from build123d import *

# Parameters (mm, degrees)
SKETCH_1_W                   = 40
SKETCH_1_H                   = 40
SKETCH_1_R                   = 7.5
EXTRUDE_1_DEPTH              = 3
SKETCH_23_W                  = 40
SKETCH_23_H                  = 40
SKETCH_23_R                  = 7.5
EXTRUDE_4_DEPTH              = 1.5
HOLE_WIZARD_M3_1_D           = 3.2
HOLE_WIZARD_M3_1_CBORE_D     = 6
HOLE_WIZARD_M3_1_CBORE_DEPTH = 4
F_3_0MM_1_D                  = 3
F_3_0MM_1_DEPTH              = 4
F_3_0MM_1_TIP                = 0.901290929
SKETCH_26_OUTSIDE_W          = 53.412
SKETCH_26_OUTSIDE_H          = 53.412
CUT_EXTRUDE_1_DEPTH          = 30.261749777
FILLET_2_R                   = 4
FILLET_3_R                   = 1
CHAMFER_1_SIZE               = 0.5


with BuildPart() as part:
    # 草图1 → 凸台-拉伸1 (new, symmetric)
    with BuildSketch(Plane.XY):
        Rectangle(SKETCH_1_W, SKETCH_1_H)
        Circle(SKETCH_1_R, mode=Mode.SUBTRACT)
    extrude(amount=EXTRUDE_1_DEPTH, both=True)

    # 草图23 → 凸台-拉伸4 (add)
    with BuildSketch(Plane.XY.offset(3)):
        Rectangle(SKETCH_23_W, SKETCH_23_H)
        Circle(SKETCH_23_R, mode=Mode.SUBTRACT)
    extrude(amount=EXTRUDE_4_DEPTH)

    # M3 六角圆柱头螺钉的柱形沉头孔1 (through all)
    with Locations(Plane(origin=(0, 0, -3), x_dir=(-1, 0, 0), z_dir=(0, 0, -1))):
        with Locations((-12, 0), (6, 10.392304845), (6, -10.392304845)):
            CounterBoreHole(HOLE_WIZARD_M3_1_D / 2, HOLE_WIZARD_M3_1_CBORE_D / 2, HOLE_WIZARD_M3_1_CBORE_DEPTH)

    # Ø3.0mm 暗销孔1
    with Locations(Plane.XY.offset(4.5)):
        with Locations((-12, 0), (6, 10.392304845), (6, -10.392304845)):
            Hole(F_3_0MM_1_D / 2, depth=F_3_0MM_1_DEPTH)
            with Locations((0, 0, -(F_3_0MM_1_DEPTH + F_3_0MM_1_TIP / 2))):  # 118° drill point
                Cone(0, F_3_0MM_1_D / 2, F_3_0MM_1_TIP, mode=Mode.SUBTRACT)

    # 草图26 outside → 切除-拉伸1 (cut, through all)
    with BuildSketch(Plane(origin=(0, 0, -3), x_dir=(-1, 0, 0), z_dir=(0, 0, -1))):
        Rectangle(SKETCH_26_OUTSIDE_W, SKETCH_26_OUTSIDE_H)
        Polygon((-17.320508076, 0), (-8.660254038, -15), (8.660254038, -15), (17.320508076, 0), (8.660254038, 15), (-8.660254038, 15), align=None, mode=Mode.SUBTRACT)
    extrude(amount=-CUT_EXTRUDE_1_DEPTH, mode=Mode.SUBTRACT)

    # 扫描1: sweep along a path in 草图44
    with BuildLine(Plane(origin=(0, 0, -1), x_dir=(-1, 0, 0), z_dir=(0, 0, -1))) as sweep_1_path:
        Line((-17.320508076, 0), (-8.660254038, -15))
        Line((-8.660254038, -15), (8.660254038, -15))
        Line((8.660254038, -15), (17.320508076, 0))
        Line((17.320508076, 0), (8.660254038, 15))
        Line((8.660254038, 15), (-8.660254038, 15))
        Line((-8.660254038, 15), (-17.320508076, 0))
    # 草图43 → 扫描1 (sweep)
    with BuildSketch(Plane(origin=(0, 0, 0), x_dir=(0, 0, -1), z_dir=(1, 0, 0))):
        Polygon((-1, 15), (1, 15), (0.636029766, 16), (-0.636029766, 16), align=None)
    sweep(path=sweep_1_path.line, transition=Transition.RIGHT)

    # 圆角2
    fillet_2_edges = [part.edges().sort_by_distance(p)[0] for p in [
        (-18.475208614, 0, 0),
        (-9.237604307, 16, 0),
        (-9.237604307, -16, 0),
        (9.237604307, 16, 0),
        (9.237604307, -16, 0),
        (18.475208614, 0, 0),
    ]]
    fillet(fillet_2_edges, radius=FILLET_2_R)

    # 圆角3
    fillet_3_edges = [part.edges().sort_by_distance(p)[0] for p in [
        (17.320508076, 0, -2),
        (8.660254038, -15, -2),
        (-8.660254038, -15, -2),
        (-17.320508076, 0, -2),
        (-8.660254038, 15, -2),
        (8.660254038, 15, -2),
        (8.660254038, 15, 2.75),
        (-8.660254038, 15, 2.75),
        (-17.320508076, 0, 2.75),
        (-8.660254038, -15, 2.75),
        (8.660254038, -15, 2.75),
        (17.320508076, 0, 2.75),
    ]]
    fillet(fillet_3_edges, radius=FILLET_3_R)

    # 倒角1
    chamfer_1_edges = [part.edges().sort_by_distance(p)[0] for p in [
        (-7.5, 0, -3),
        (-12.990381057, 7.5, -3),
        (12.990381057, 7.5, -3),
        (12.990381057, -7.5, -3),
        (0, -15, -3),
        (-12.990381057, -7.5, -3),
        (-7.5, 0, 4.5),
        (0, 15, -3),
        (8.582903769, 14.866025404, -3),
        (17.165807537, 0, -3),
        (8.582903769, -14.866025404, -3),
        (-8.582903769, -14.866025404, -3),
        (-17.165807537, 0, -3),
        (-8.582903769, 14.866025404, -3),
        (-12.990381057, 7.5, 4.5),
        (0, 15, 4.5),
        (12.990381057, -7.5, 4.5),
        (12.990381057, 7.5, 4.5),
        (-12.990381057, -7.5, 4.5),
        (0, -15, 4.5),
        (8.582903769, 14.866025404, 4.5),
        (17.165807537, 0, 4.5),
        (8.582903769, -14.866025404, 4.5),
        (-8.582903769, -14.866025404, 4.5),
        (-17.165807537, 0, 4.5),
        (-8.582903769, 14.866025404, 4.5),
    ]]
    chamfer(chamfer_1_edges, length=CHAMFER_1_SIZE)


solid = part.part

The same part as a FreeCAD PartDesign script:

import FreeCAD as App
import Part
import Sketcher
from FreeCAD import Vector
Q = App.Units.Quantity


def edges_at(feature, points):
    """Names of the edges that pass closest to the given points."""
    edges = feature.Shape.Edges
    near = lambda p: min(range(len(edges)), key=lambda i: edges[i].distToShape(Part.Vertex(*p))[0])
    return sorted({f"Edge{near(p) + 1}" for p in points})

doc = App.newDocument("Part")
body = doc.addObject("PartDesign::Body", "Body")

sketch1 = body.newObject("Sketcher::SketchObject", "Sketch")
sketch1.AttachmentSupport = (doc.getObject("XY_Plane"), [""])
sketch1.MapMode = "FlatFace"
sketch1.addGeometry(Part.LineSegment(Vector(-20, 20, 0), Vector(-20, -20, 0)), False)
sketch1.addGeometry(Part.LineSegment(Vector(-20, -20, 0), Vector(20, -20, 0)), False)
sketch1.addGeometry(Part.LineSegment(Vector(20, -20, 0), Vector(20, 20, 0)), False)
sketch1.addGeometry(Part.LineSegment(Vector(20, 20, 0), Vector(-20, 20, 0)), False)
sketch1.addGeometry(Part.Circle(Vector(0, 0, 0), Vector(0, 0, 1), 7.5), False)
sketch1.addConstraint(Sketcher.Constraint("Coincident", 0, 2, 1, 1))
sketch1.addConstraint(Sketcher.Constraint("Coincident", 1, 2, 2, 1))
sketch1.addConstraint(Sketcher.Constraint("Coincident", 2, 2, 3, 1))
sketch1.addConstraint(Sketcher.Constraint("Coincident", 3, 2, 0, 1))
sketch1.addConstraint(Sketcher.Constraint("Vertical", 0))
sketch1.addConstraint(Sketcher.Constraint("Horizontal", 1))
sketch1.addConstraint(Sketcher.Constraint("Vertical", 2))
sketch1.addConstraint(Sketcher.Constraint("Horizontal", 3))
sketch1.addConstraint(Sketcher.Constraint("Coincident", 4, 3, -1, 1))
sketch1.addConstraint(Sketcher.Constraint("Symmetric", 0, 2, 2, 2, -1, 1))
sketch1.addConstraint(Sketcher.Constraint("Equal", 3, 0))
sketch1.addConstraint(Sketcher.Constraint("Diameter", 4, Q("15 mm")))
sketch1.addConstraint(Sketcher.Constraint("DistanceX", 1, 1, 1, 2, Q("40 mm")))
pad1 = body.newObject("PartDesign::Pad", "Pad")
pad1.Profile = sketch1
pad1.Length = 6
pad1.Midplane = True

sketch2 = body.newObject("Sketcher::SketchObject", "Sketch001")
sketch2.AttachmentSupport = (doc.getObject("XY_Plane"), [""])
sketch2.MapMode = "FlatFace"
sketch2.AttachmentOffset = App.Placement(Vector(0, 0, 3), App.Rotation())
sketch2.addGeometry(Part.LineSegment(Vector(-20, 20, 0), Vector(-20, -20, 0)), False)
sketch2.addGeometry(Part.LineSegment(Vector(-20, -20, 0), Vector(20, -20, 0)), False)
sketch2.addGeometry(Part.LineSegment(Vector(20, -20, 0), Vector(20, 20, 0)), False)
sketch2.addGeometry(Part.LineSegment(Vector(20, 20, 0), Vector(-20, 20, 0)), False)
sketch2.addGeometry(Part.Circle(Vector(0, 0, 0), Vector(0, 0, 1), 7.5), False)
sketch2.addConstraint(Sketcher.Constraint("Coincident", 0, 2, 1, 1))
sketch2.addConstraint(Sketcher.Constraint("Coincident", 1, 2, 2, 1))
sketch2.addConstraint(Sketcher.Constraint("Coincident", 2, 2, 3, 1))
sketch2.addConstraint(Sketcher.Constraint("Coincident", 3, 2, 0, 1))
sketch2.addConstraint(Sketcher.Constraint("Vertical", 0))
sketch2.addConstraint(Sketcher.Constraint("Horizontal", 1))
sketch2.addConstraint(Sketcher.Constraint("Vertical", 2))
sketch2.addConstraint(Sketcher.Constraint("Horizontal", 3))
sketch2.addConstraint(Sketcher.Constraint("Coincident", 4, 3, -1, 1))
sketch2.addConstraint(Sketcher.Constraint("Symmetric", 0, 2, 2, 2, -1, 1))
sketch2.addConstraint(Sketcher.Constraint("Equal", 3, 0))
sketch2.addConstraint(Sketcher.Constraint("Diameter", 4, Q("15 mm")))
sketch2.addConstraint(Sketcher.Constraint("DistanceX", 1, 1, 1, 2, Q("40 mm")))
pad2 = body.newObject("PartDesign::Pad", "Pad001")
pad2.Profile = sketch2
pad2.Length = 1.5

sketch3 = body.newObject("Sketcher::SketchObject", "Sketch002")
sketch3.AttachmentSupport = (doc.getObject("XY_Plane"), [""])
sketch3.MapMode = "FlatFace"
sketch3.AttachmentOffset = App.Placement(Vector(0, 0, -3), App.Rotation())
sketch3.addGeometry(Part.Circle(Vector(12, 0, 0), Vector(0, 0, 1), 1.6), False)
sketch3.addGeometry(Part.Circle(Vector(-6, 10.392305, 0), Vector(0, 0, 1), 1.6), False)
sketch3.addGeometry(Part.Circle(Vector(-6, -10.392305, 0), Vector(0, 0, 1), 1.6), False)
sketch3.addConstraint(Sketcher.Constraint("Equal", 0, 1))
sketch3.addConstraint(Sketcher.Constraint("Equal", 1, 2))
sketch3.addConstraint(Sketcher.Constraint("Symmetric", 1, 3, 2, 3, -1))
sketch3.addConstraint(Sketcher.Constraint("PointOnObject", 0, 3, -1))
sketch3.addConstraint(Sketcher.Constraint("Diameter", 0, Q("3.2 mm")))
sketch3.addConstraint(Sketcher.Constraint("DistanceX", -1, 1, 0, 3, Q("12 mm")))
sketch3.addConstraint(Sketcher.Constraint("DistanceX", 1, 3, -1, 1, Q("6 mm")))
sketch3.addConstraint(Sketcher.Constraint("DistanceY", 2, 3, 1, 3, Q("20.78461 mm")))
doc.recompute()
hole = body.newObject("PartDesign::Hole", "Hole")
hole.Profile = sketch3
hole.ThreadType = "None"
hole.Diameter = 3.2
hole.DepthType = "ThroughAll"
hole.HoleCutType = "Counterbore"
hole.HoleCutDiameter = 6
hole.HoleCutDepth = 4
hole.Reversed = True

sketch4 = body.newObject("Sketcher::SketchObject", "Sketch003")
sketch4.AttachmentSupport = (doc.getObject("XY_Plane"), [""])
sketch4.MapMode = "FlatFace"
sketch4.AttachmentOffset = App.Placement(Vector(0, 0, 4.5), App.Rotation())
sketch4.addGeometry(Part.Circle(Vector(-12, 0, 0), Vector(0, 0, 1), 1.5), False)
sketch4.addGeometry(Part.Circle(Vector(6, 10.392305, 0), Vector(0, 0, 1), 1.5), False)
sketch4.addGeometry(Part.Circle(Vector(6, -10.392305, 0), Vector(0, 0, 1), 1.5), False)
sketch4.addConstraint(Sketcher.Constraint("Equal", 0, 1))
sketch4.addConstraint(Sketcher.Constraint("Equal", 1, 2))
sketch4.addConstraint(Sketcher.Constraint("Symmetric", 1, 3, 2, 3, -1))
sketch4.addConstraint(Sketcher.Constraint("PointOnObject", 0, 3, -1))
sketch4.addConstraint(Sketcher.Constraint("Diameter", 0, Q("3 mm")))
sketch4.addConstraint(Sketcher.Constraint("DistanceX", 0, 3, -1, 1, Q("12 mm")))
sketch4.addConstraint(Sketcher.Constraint("DistanceX", -1, 1, 1, 3, Q("6 mm")))
sketch4.addConstraint(Sketcher.Constraint("DistanceY", 2, 3, 1, 3, Q("20.78461 mm")))
doc.recompute()
hole2 = body.newObject("PartDesign::Hole", "Hole001")
hole2.Profile = sketch4
hole2.ThreadType = "None"
hole2.Diameter = 3
hole2.DepthType = "Dimension"
hole2.Depth = 4
hole2.DrillPoint = "Angled"
hole2.DrillPointAngle = 118

sketch5 = body.newObject("Sketcher::SketchObject", "Sketch004")
sketch5.AttachmentSupport = (doc.getObject("XY_Plane"), [""])
sketch5.MapMode = "FlatFace"
sketch5.AttachmentOffset = App.Placement(Vector(0, 0, -3), App.Rotation())
sketch5.addGeometry(Part.LineSegment(Vector(26.706, 26.706, 0), Vector(26.706, -26.706, 0)), False)
sketch5.addGeometry(Part.LineSegment(Vector(26.706, -26.706, 0), Vector(-26.706, -26.706, 0)), False)
sketch5.addGeometry(Part.LineSegment(Vector(-26.706, -26.706, 0), Vector(-26.706, 26.706, 0)), False)
sketch5.addGeometry(Part.LineSegment(Vector(-26.706, 26.706, 0), Vector(26.706, 26.706, 0)), False)
sketch5.addGeometry(Part.LineSegment(Vector(8.660254, -15, 0), Vector(17.320508, 0, 0)), False)
sketch5.addGeometry(Part.LineSegment(Vector(17.320508, 0, 0), Vector(8.660254, 15, 0)), False)
sketch5.addGeometry(Part.LineSegment(Vector(8.660254, 15, 0), Vector(-8.660254, 15, 0)), False)
sketch5.addGeometry(Part.LineSegment(Vector(-8.660254, 15, 0), Vector(-17.320508, 0, 0)), False)
sketch5.addGeometry(Part.LineSegment(Vector(-17.320508, 0, 0), Vector(-8.660254, -15, 0)), False)
sketch5.addGeometry(Part.LineSegment(Vector(-8.660254, -15, 0), Vector(8.660254, -15, 0)), False)
sketch5.addConstraint(Sketcher.Constraint("Coincident", 0, 2, 1, 1))
sketch5.addConstraint(Sketcher.Constraint("Coincident", 1, 2, 2, 1))
sketch5.addConstraint(Sketcher.Constraint("Coincident", 2, 2, 3, 1))
sketch5.addConstraint(Sketcher.Constraint("Coincident", 3, 2, 0, 1))
sketch5.addConstraint(Sketcher.Constraint("Coincident", 4, 2, 5, 1))
sketch5.addConstraint(Sketcher.Constraint("Coincident", 5, 2, 6, 1))
sketch5.addConstraint(Sketcher.Constraint("Coincident", 6, 2, 7, 1))
sketch5.addConstraint(Sketcher.Constraint("Coincident", 7, 2, 8, 1))
sketch5.addConstraint(Sketcher.Constraint("Coincident", 8, 2, 9, 1))
sketch5.addConstraint(Sketcher.Constraint("Coincident", 9, 2, 4, 1))
sketch5.addConstraint(Sketcher.Constraint("Vertical", 0))
sketch5.addConstraint(Sketcher.Constraint("Horizontal", 1))
sketch5.addConstraint(Sketcher.Constraint("Vertical", 2))
sketch5.addConstraint(Sketcher.Constraint("Horizontal", 3))
sketch5.addConstraint(Sketcher.Constraint("Horizontal", 6))
sketch5.addConstraint(Sketcher.Constraint("Horizontal", 9))
sketch5.addConstraint(Sketcher.Constraint("Symmetric", 0, 2, 2, 2, -1, 1))
sketch5.addConstraint(Sketcher.Constraint("Symmetric", 4, 2, 7, 2, -1, 1))
sketch5.addConstraint(Sketcher.Constraint("Symmetric", 5, 2, 8, 2, -1, 1))
sketch5.addConstraint(Sketcher.Constraint("PointOnObject", 4, 2, -1))
sketch5.addConstraint(Sketcher.Constraint("Parallel", 4, 7))
sketch5.addConstraint(Sketcher.Constraint("Vertical", 6, 2, 8, 2))
sketch5.addConstraint(Sketcher.Constraint("Equal", 3, 0))
sketch5.addConstraint(Sketcher.Constraint("Angle", 4, Q("60 deg")))
sketch5.addConstraint(Sketcher.Constraint("DistanceY", -1, 1, 5, 2, Q("15 mm")))
sketch5.addConstraint(Sketcher.Constraint("DistanceX", 1, 2, 1, 1, Q("53.412 mm")))
sketch5.addConstraint(Sketcher.Constraint("DistanceX", 6, 2, 6, 1, Q("17.320508 mm")))
pocket1 = body.newObject("PartDesign::Pocket", "Pocket")
pocket1.Profile = sketch5
pocket1.Type = "ThroughAll"
pocket1.Reversed = True

sketch6 = body.newObject("Sketcher::SketchObject", "Sketch005")
sketch6.AttachmentSupport = (doc.getObject("YZ_Plane"), [""])
sketch6.MapMode = "FlatFace"
sketch6.addGeometry(Part.LineSegment(Vector(15, 1, 0), Vector(15, -1, 0)), False)
sketch6.addGeometry(Part.LineSegment(Vector(15, -1, 0), Vector(16, -0.63603, 0)), False)
sketch6.addGeometry(Part.LineSegment(Vector(16, -0.63603, 0), Vector(16, 0.63603, 0)), False)
sketch6.addGeometry(Part.LineSegment(Vector(16, 0.63603, 0), Vector(15, 1, 0)), False)
sketch6.addConstraint(Sketcher.Constraint("Coincident", 0, 2, 1, 1))
sketch6.addConstraint(Sketcher.Constraint("Coincident", 1, 2, 2, 1))
sketch6.addConstraint(Sketcher.Constraint("Coincident", 2, 2, 3, 1))
sketch6.addConstraint(Sketcher.Constraint("Coincident", 3, 2, 0, 1))
sketch6.addConstraint(Sketcher.Constraint("Vertical", 0))
sketch6.addConstraint(Sketcher.Constraint("Vertical", 2))
sketch6.addConstraint(Sketcher.Constraint("Equal", 1, 3))
sketch6.addConstraint(Sketcher.Constraint("DistanceY", 0, 2, 0, 1, Q("2 mm")))
sketch6.addConstraint(Sketcher.Constraint("Angle", 1, Q("20 deg")))
sketch6.addConstraint(Sketcher.Constraint("DistanceX", -1, 1, 0, 2, Q("15 mm")))
sketch6.addConstraint(Sketcher.Constraint("DistanceY", 0, 2, -1, 1, Q("1 mm")))
sketch6.addConstraint(Sketcher.Constraint("DistanceX", -1, 1, 1, 2, Q("16 mm")))

sketch7 = body.newObject("Sketcher::SketchObject", "Sketch006")
sketch7.AttachmentSupport = (doc.getObject("XY_Plane"), [""])
sketch7.MapMode = "FlatFace"
sketch7.AttachmentOffset = App.Placement(Vector(0, 0, -1), App.Rotation())
sketch7.addGeometry(Part.LineSegment(Vector(17.320508, 0, 0), Vector(8.660254, -15, 0)), False)
sketch7.addGeometry(Part.LineSegment(Vector(8.660254, -15, 0), Vector(-8.660254, -15, 0)), False)
sketch7.addGeometry(Part.LineSegment(Vector(-8.660254, -15, 0), Vector(-17.320508, 0, 0)), False)
sketch7.addGeometry(Part.LineSegment(Vector(-17.320508, 0, 0), Vector(-8.660254, 15, 0)), False)
sketch7.addGeometry(Part.LineSegment(Vector(-8.660254, 15, 0), Vector(8.660254, 15, 0)), False)
sketch7.addGeometry(Part.LineSegment(Vector(8.660254, 15, 0), Vector(17.320508, 0, 0)), False)
sketch7.addConstraint(Sketcher.Constraint("Coincident", 0, 2, 1, 1))
sketch7.addConstraint(Sketcher.Constraint("Coincident", 1, 2, 2, 1))
sketch7.addConstraint(Sketcher.Constraint("Coincident", 2, 2, 3, 1))
sketch7.addConstraint(Sketcher.Constraint("Coincident", 3, 2, 4, 1))
sketch7.addConstraint(Sketcher.Constraint("Coincident", 4, 2, 5, 1))
sketch7.addConstraint(Sketcher.Constraint("Coincident", 5, 2, 0, 1))
sketch7.addConstraint(Sketcher.Constraint("Horizontal", 1))
sketch7.addConstraint(Sketcher.Constraint("Horizontal", 4))
sketch7.addConstraint(Sketcher.Constraint("Symmetric", 0, 2, 3, 2, -1, 1))
sketch7.addConstraint(Sketcher.Constraint("Symmetric", 2, 2, 5, 2, -1, 1))
sketch7.addConstraint(Sketcher.Constraint("PointOnObject", 2, 2, -1))
sketch7.addConstraint(Sketcher.Constraint("Parallel", 2, 5))
sketch7.addConstraint(Sketcher.Constraint("Vertical", 1, 2, 3, 2))
sketch7.addConstraint(Sketcher.Constraint("Angle", 0, Q("-120 deg")))
sketch7.addConstraint(Sketcher.Constraint("DistanceY", 0, 2, -1, 1, Q("15 mm")))
sketch7.addConstraint(Sketcher.Constraint("DistanceX", 1, 2, 1, 1, Q("17.320508 mm")))
doc.recompute()

additivepipe = body.newObject("PartDesign::AdditivePipe", "AdditivePipe")
additivepipe.Profile = sketch6
additivepipe.Spine = (sketch7, ["Edge1", "Edge2", "Edge3", "Edge4", "Edge5", "Edge6"])
additivepipe.Transition = "Right corner"
doc.recompute()

fillet = body.newObject("PartDesign::Fillet", "Fillet")
fillet.Base = (additivepipe, edges_at(additivepipe, [
    (-18.475, 0, 0),
    (-9.238, 16, 0),
    (-9.238, -16, 0),
    (9.238, 16, 0),
    (9.238, -16, 0),
    (18.475, 0, 0),
]))
fillet.Radius = 4
doc.recompute()

fillet2 = body.newObject("PartDesign::Fillet", "Fillet001")
fillet2.Base = (fillet, edges_at(fillet, [
    (17.321, 0, -2),
    (8.66, -15, -2),
    (-8.66, -15, -2),
    (-17.321, 0, -2),
    (-8.66, 15, -2),
    (8.66, 15, -2),
    (8.66, 15, 2.75),
    (-8.66, 15, 2.75),
    (-17.321, 0, 2.75),
    (-8.66, -15, 2.75),
    (8.66, -15, 2.75),
    (17.321, 0, 2.75),
]))
fillet2.Radius = 1
doc.recompute()

chamfer = body.newObject("PartDesign::Chamfer", "Chamfer")
chamfer.Base = (fillet2, edges_at(fillet2, [
    (-7.5, 0, -3),
    (-12.99, 7.5, -3),
    (12.99, 7.5, -3),
    (12.99, -7.5, -3),
    (0, -15, -3),
    (-12.99, -7.5, -3),
    (-7.5, 0, 4.5),
    (0, 15, -3),
    (8.583, 14.866, -3),
    (17.166, 0, -3),
    (8.583, -14.866, -3),
    (-8.583, -14.866, -3),
    (-17.166, 0, -3),
    (-8.583, 14.866, -3),
    (-12.99, 7.5, 4.5),
    (0, 15, 4.5),
    (12.99, -7.5, 4.5),
    (12.99, 7.5, 4.5),
    (-12.99, -7.5, 4.5),
    (0, -15, 4.5),
    (8.583, 14.866, 4.5),
    (17.166, 0, 4.5),
    (8.583, -14.866, 4.5),
    (-8.583, -14.866, 4.5),
    (-17.166, 0, 4.5),
    (-8.583, 14.866, 4.5),
]))
chamfer.Size = 0.5

doc.recompute()
